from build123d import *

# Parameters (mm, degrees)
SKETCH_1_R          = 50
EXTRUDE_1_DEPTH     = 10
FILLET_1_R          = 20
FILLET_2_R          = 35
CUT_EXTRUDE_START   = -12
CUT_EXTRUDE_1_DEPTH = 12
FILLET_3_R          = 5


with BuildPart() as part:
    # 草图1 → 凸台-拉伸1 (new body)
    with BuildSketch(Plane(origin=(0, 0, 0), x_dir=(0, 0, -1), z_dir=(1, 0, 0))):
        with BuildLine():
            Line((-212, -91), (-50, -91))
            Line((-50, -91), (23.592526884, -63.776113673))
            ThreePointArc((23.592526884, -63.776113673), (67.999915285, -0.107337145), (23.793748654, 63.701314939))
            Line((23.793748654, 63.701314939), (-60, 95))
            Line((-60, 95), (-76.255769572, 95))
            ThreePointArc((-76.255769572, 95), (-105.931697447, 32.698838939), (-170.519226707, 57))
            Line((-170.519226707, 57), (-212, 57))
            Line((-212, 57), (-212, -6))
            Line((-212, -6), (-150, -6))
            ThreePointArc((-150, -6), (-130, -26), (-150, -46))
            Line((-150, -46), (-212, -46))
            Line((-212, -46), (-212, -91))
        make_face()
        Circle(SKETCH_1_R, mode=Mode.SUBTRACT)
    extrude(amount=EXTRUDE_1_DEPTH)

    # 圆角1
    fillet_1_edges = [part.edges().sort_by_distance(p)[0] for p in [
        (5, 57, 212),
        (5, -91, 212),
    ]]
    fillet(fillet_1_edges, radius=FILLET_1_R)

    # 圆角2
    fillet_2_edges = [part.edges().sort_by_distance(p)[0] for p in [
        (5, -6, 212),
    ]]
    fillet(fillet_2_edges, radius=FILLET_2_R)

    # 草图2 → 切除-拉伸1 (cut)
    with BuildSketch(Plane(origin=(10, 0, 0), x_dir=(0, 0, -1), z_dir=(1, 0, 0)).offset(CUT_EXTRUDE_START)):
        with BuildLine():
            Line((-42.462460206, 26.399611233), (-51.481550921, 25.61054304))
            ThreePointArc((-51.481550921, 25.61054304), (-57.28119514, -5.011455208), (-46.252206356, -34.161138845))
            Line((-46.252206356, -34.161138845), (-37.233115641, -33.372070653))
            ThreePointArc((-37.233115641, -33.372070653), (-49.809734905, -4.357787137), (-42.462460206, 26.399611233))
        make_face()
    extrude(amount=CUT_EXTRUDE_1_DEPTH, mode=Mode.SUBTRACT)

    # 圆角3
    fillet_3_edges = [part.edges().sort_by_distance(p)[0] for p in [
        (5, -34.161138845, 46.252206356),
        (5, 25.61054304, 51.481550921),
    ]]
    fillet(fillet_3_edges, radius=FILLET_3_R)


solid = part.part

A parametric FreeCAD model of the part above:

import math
import FreeCAD as App
import Part
import Sketcher

V = App.Vector
Q = App.Units.Quantity


def edges_at(feature, points):
    """Names of the edges that pass closest to the given points."""
    edges = feature.Shape.Edges
    near = lambda p: min(range(len(edges)), key=lambda i: edges[i].distToShape(Part.Vertex(*p))[0])
    return sorted({f"Edge{near(p) + 1}" for p in points})

doc = App.newDocument("Part")
body = doc.addObject("PartDesign::Body", "Body")

# Sketch on YZ plane
sketch1 = doc.addObject("Sketcher::SketchObject", "Sketch")
body.addObject(sketch1)
sketch1.AttachmentSupport = (doc.YZ_Plane, [""])
sketch1.MapMode = "FlatFace"
sketch1.addGeometry(Part.LineSegment(V(-91, 212, 0), V(-91, 50, 0)), False)
sketch1.addGeometry(Part.LineSegment(V(-91, 50, 0), V(-64, -24, 0)), False)
sketch1.addGeometry(Part.ArcOfCircle(Part.Circle(V(0, 0, 0), V(0, 0, 1), 68), math.radians(-160), math.radians(-20)), False)
sketch1.addGeometry(Part.LineSegment(V(64, -24, 0), V(95, 60, 0)), False)
sketch1.addGeometry(Part.LineSegment(V(95, 60, 0), V(95, 76, 0)), False)
sketch1.addGeometry(Part.ArcOfCircle(Part.Circle(V(80, 125, 0), V(0, 0, 1), 51), math.radians(117), math.radians(287)), False)
sketch1.addGeometry(Part.LineSegment(V(57, 171, 0), V(57, 212, 0)), False)
sketch1.addGeometry(Part.LineSegment(V(57, 212, 0), V(-6, 212, 0)), False)
sketch1.addGeometry(Part.LineSegment(V(-6, 212, 0), V(-6, 150, 0)), False)
sketch1.addGeometry(Part.ArcOfCircle(Part.Circle(V(-26, 150, 0), V(0, 0, 1), 20), math.radians(180), math.radians(360)), False)
sketch1.addGeometry(Part.LineSegment(V(-46, 150, 0), V(-46, 212, 0)), False)
sketch1.addGeometry(Part.LineSegment(V(-46, 212, 0), V(-91, 212, 0)), False)
sketch1.addGeometry(Part.Circle(V(0, 0, 0), V(0, 0, 1), 50), False)
sketch1.addConstraint(Sketcher.Constraint("Coincident", 0, 2, 1, 1))
sketch1.addConstraint(Sketcher.Constraint("Tangent", 1, 2, 2, 1))
sketch1.addConstraint(Sketcher.Constraint("Tangent", 2, 2, 3, 1))
sketch1.addConstraint(Sketcher.Constraint("Coincident", 3, 2, 4, 1))
sketch1.addConstraint(Sketcher.Constraint("Coincident", 4, 2, 5, 2))
sketch1.addConstraint(Sketcher.Constraint("Coincident", 5, 1, 6, 1))
sketch1.addConstraint(Sketcher.Constraint("Coincident", 6, 2, 7, 1))
sketch1.addConstraint(Sketcher.Constraint("Coincident", 7, 2, 8, 1))
sketch1.addConstraint(Sketcher.Constraint("Tangent", 8, 2, 9, 2))
sketch1.addConstraint(Sketcher.Constraint("Tangent", 9, 1, 10, 1))
sketch1.addConstraint(Sketcher.Constraint("Coincident", 10, 2, 11, 1))
sketch1.addConstraint(Sketcher.Constraint("Coincident", 11, 2, 0, 1))
sketch1.addConstraint(Sketcher.Constraint("Vertical", 0))
sketch1.addConstraint(Sketcher.Constraint("Vertical", 4))
sketch1.addConstraint(Sketcher.Constraint("Vertical", 6))
sketch1.addConstraint(Sketcher.Constraint("Horizontal", 7))
sketch1.addConstraint(Sketcher.Constraint("Vertical", 8))
sketch1.addConstraint(Sketcher.Constraint("Vertical", 10))
sketch1.addConstraint(Sketcher.Constraint("Horizontal", 11))
sketch1.addConstraint(Sketcher.Constraint("Coincident", 2, 3, -1, 1))
sketch1.addConstraint(Sketcher.Constraint("Coincident", 12, 3, -1, 1))
sketch1.addConstraint(Sketcher.Constraint("Horizontal", 7, 2, 10, 2))
sketch1.addConstraint(Sketcher.Constraint("Diameter", 12, Q("100 mm")))
sketch1.addConstraint(Sketcher.Constraint("Radius", 2, Q("68 mm")))
sketch1.addConstraint(Sketcher.Constraint("Radius", 5, Q("51 mm")))
sketch1.addConstraint(Sketcher.Constraint("Radius", 9, Q("20 mm")))
sketch1.addConstraint(Sketcher.Constraint("DistanceX", 7, 2, 7, 1, Q("63 mm")))
sketch1.addConstraint(Sketcher.Constraint("DistanceX", 11, 2, 11, 1, Q("45 mm")))
sketch1.addConstraint(Sketcher.Constraint("DistanceY", 0, 2, 0, 1, Q("162 mm")))
sketch1.addConstraint(Sketcher.Constraint("DistanceY", 8, 2, 8, 1, Q("62 mm")))
sketch1.addConstraint(Sketcher.Constraint("DistanceX", -1, 1, 5, 3, Q("80 mm")))
sketch1.addConstraint(Sketcher.Constraint("DistanceY", -1, 1, 5, 3, Q("125 mm")))
sketch1.addConstraint(Sketcher.Constraint("DistanceX", 9, 3, -1, 1, Q("26 mm")))
sketch1.addConstraint(Sketcher.Constraint("DistanceY", -1, 1, 9, 3, Q("150 mm")))
sketch1.addConstraint(Sketcher.Constraint("DistanceX", -1, 1, 3, 2, Q("95 mm")))
sketch1.addConstraint(Sketcher.Constraint("DistanceY", -1, 1, 3, 2, Q("60 mm")))
pad1 = doc.addObject("PartDesign::Pad", "Pad")
body.addObject(pad1)
pad1.Profile = sketch1
pad1.Length = 10
doc.recompute()

fillet = doc.addObject("PartDesign::Fillet", "Fillet")
body.addObject(fillet)
fillet.Base = (pad1, edges_at(pad1, [(5, 57, 212), (5, -91, 212)]))
fillet.Radius = 20
doc.recompute()

fillet2 = doc.addObject("PartDesign::Fillet", "Fillet001")
body.addObject(fillet2)
fillet2.Base = (fillet, edges_at(fillet, [(5, -6, 212)]))
fillet2.Radius = 35

# Sketch on YZ plane
sketch2 = doc.addObject("Sketcher::SketchObject", "Sketch001")
body.addObject(sketch2)
sketch2.AttachmentSupport = (doc.YZ_Plane, [""])
sketch2.MapMode = "FlatFace"
sketch2.AttachmentOffset = App.Placement(V(0, 0, -2), App.Rotation())
sketch2.addGeometry(Part.LineSegment(V(26, 42, 0), V(26, 51, 0)), False)
sketch2.addGeometry(Part.ArcOfCircle(Part.Circle(V(0, 0, 0), V(0, 0, 1), 58), math.radians(64), math.radians(126)), False)
sketch2.addGeometry(Part.LineSegment(V(-34, 46, 0), V(-33, 37, 0)), False)
sketch2.addGeometry(Part.ArcOfCircle(Part.Circle(V(0, 0, 0), V(0, 0, 1), 50), math.radians(58), math.radians(132)), False)
sketch2.addConstraint(Sketcher.Constraint("Coincident", 0, 2, 1, 1))
sketch2.addConstraint(Sketcher.Constraint("Coincident", 1, 2, 2, 1))
sketch2.addConstraint(Sketcher.Constraint("Coincident", 2, 2, 3, 2))
sketch2.addConstraint(Sketcher.Constraint("Coincident", 3, 1, 0, 1))
sketch2.addConstraint(Sketcher.Constraint("Coincident", 1, 3, -1, 1))
sketch2.addConstraint(Sketcher.Constraint("Coincident", 3, 3, -1, 1))
sketch2.addConstraint(Sketcher.Constraint("Parallel", 0, 2))
sketch2.addConstraint(Sketcher.Constraint("Equal", 0, 2))
sketch2.addConstraint(Sketcher.Constraint("Radius", 3, Q("50 mm")))
sketch2.addConstraint(Sketcher.Constraint("Radius", 1, Q("57.5 mm")))
sketch2.addConstraint(Sketcher.Constraint("Angle", 0, Q("95 deg")))
sketch2.addConstraint(Sketcher.Constraint("DistanceY", -1, 1, 0, 2, Q("51.481551 mm")))
pocket1 = doc.addObject("PartDesign::Pocket", "Pocket")
body.addObject(pocket1)
pocket1.Profile = sketch2
pocket1.Length = 12
pocket1.Reversed = True
doc.recompute()

fillet3 = doc.addObject("PartDesign::Fillet", "Fillet002")
body.addObject(fillet3)
fillet3.Base = (pocket1, edges_at(pocket1, [(5, -34.161, 46.252), (5, 25.611, 51.482)]))
fillet3.Radius = 5

doc.recompute()
